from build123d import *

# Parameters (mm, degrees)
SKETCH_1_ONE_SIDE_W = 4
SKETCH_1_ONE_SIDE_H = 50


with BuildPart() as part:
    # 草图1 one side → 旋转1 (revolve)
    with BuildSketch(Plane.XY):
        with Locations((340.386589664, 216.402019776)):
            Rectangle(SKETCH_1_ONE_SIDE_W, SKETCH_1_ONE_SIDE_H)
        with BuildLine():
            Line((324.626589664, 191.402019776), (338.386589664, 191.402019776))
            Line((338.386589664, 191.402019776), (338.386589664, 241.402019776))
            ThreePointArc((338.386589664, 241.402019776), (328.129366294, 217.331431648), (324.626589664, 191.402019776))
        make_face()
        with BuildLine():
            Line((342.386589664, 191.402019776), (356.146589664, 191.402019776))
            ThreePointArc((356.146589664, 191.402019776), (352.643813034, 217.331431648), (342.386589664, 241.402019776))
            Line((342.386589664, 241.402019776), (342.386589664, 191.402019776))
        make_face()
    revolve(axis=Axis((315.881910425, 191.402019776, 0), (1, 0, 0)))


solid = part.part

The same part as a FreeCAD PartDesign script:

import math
import FreeCAD as App
import Part
import Sketcher
from FreeCAD import Vector
Q = App.Units.Quantity

doc = App.newDocument("Part")
body = doc.addObject("PartDesign::Body", "Body")

# Sketch on XY plane
sketch1 = body.newObject("Sketcher::SketchObject", "Sketch")
sketch1.AttachmentSupport = (doc.getObject("XY_Plane"), [""])
sketch1.MapMode = "FlatFace"
sketch1.addGeometry(Part.LineSegment(Vector(342.38659, 241.40202, 0), Vector(338.38659, 241.40202, 0)), False)
sketch1.addGeometry(Part.ArcOfCircle(Part.Circle(Vector(422.349613, 191.40202, 0), Vector(0, 0, 1), 97.723023), math.radians(149.226192), math.radians(180)), False)
sketch1.addGeometry(Part.LineSegment(Vector(324.62659, 191.40202, 0), Vector(356.14659, 191.40202, 0)), False)
sketch1.addGeometry(Part.ArcOfCircle(Part.Circle(Vector(258.423566, 191.40202, 0), Vector(0, 0, 1), 97.723023), math.radians(0), math.radians(30.773808)), False)
sketch1.addGeometry(Part.LineSegment(Vector(258.423566, 191.40202, 0), Vector(422.349613, 191.40202, 0)), True)  # axis
sketch1.addConstraint(Sketcher.Constraint("Coincident", 0, 2, 1, 1))
sketch1.addConstraint(Sketcher.Constraint("Coincident", 1, 2, 2, 1))
sketch1.addConstraint(Sketcher.Constraint("Coincident", 2, 2, 3, 1))
sketch1.addConstraint(Sketcher.Constraint("Coincident", 3, 2, 0, 1))
sketch1.addConstraint(Sketcher.Constraint("Horizontal", 0))
sketch1.addConstraint(Sketcher.Constraint("Horizontal", 2))
sketch1.addConstraint(Sketcher.Constraint("Horizontal", 4))
sketch1.addConstraint(Sketcher.Constraint("Coincident", 4, 1, 3, 3))
sketch1.addConstraint(Sketcher.Constraint("Coincident", 4, 2, 1, 3))
sketch1.addConstraint(Sketcher.Constraint("Equal", 1, 3))
sketch1.addConstraint(Sketcher.Constraint("Horizontal", 3, 3, 1, 2))
sketch1.addConstraint(Sketcher.Constraint("DistanceX", 0, 2, 0, 1, Q("4 mm")))
sketch1.addConstraint(Sketcher.Constraint("DistanceY", 3, 3, 0, 2, Q("50 mm")))
sketch1.addConstraint(Sketcher.Constraint("DistanceX", 2, 1, 2, 2, Q("31.52 mm")))
sketch1.addConstraint(Sketcher.Constraint("DistanceY", -1, 1, 1, 3, Q("191.40202 mm")))
sketch1.addConstraint(Sketcher.Constraint("DistanceX", -1, 1, 0, 2, Q("338.38659 mm")))
revolution = body.newObject("PartDesign::Revolution", "Revolution")
revolution.Profile = sketch1
revolution.ReferenceAxis = (sketch1, ["Axis0"])
revolution.Angle = 360

doc.recompute()
